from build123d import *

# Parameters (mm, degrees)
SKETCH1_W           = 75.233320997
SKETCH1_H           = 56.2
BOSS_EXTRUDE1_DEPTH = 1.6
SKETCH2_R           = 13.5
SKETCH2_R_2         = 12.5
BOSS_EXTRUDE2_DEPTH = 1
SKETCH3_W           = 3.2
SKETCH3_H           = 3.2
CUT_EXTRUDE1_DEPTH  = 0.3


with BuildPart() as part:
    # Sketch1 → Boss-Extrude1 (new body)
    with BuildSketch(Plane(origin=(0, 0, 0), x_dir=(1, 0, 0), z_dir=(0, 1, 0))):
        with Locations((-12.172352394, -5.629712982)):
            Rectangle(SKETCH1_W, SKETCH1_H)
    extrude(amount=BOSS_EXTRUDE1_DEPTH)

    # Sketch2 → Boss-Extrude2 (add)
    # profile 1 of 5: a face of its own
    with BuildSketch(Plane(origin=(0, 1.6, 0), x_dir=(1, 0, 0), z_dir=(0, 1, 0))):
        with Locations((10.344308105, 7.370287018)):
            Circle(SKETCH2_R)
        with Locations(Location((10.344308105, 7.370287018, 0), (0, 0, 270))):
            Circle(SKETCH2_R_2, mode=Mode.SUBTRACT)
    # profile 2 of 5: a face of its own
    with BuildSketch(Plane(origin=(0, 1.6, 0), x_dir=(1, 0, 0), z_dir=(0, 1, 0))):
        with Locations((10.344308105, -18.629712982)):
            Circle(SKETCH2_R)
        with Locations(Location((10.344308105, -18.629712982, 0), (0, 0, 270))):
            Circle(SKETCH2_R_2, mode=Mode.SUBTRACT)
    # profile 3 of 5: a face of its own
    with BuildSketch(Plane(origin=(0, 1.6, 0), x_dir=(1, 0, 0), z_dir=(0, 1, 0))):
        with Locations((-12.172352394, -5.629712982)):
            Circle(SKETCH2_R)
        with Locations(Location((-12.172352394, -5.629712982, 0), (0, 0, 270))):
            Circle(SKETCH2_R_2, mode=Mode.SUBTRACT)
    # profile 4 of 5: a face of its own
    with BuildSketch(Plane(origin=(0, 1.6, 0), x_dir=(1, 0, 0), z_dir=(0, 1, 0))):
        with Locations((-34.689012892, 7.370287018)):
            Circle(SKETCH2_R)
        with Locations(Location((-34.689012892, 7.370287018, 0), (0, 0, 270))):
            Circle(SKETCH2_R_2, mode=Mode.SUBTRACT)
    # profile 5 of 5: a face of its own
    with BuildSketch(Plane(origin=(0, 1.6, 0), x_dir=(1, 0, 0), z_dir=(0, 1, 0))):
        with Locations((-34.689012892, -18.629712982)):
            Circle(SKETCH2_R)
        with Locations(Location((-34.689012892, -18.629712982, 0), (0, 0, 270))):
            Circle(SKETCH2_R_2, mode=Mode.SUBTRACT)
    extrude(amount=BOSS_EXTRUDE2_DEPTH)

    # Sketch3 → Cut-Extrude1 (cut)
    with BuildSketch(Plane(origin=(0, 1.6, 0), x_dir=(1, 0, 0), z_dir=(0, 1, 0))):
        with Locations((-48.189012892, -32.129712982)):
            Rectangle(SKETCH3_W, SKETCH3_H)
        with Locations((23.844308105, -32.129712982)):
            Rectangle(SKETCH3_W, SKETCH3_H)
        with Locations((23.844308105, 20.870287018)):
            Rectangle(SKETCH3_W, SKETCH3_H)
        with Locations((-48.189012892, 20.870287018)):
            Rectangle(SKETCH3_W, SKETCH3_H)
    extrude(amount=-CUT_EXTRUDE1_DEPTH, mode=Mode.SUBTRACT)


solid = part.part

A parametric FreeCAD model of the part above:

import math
import FreeCAD as App
import Part
import Sketcher
from FreeCAD import Vector
Q = App.Units.Quantity


def add_polygon(sketch, points):
    """Adds a closed chain of lines whose ends are joined by coincident constraints."""
    first, n = sketch.GeometryCount, len(points)
    for a, b in zip(points, points[1:] + points[:1]):
        sketch.addGeometry(Part.LineSegment(App.Vector(*a, 0), App.Vector(*b, 0)), False)
    for i in range(n):
        sketch.addConstraint(Sketcher.Constraint("Coincident", first + i, 2, first + (i + 1) % n, 1))

doc = App.newDocument("Part")
params = doc.addObject("Spreadsheet::Sheet", "Params")
for row, (alias, value) in enumerate([
    ("sketch1_height", "56.2 mm"),
    ("pad1_length", "1.6 mm"),
    ("sketch2_diameter", "25 mm"),
    ("sketch2_radius", "13.5 mm"),
    ("pad2_length", "1 mm"),
    ("sketch3_width", "3.2 mm"),
    ("pocket1_length", "0.3 mm"),
], start=1):
    params.set(f"A{row}", alias)
    params.set(f"B{row}", "=" + value)
    params.setAlias(f"B{row}", alias)

body = doc.addObject("PartDesign::Body", "Body")

sketch1 = body.newObject("Sketcher::SketchObject", "Sketch")
sketch1.AttachmentSupport = (doc.getObject("XZ_Plane"), [""])
sketch1.MapMode = "FlatFace"
add_polygon(sketch1, [(-50, -22), (-50, 34), (25, 34), (25, -22)])
sketch1.addConstraint([
    Sketcher.Constraint("Vertical", 0),
    Sketcher.Constraint("Horizontal", 1),
    Sketcher.Constraint("Vertical", 2),
    Sketcher.Constraint("Horizontal", 3),
    Sketcher.Constraint("DistanceY", 0, 1, 0, 2, Q("56.2 mm")),
    Sketcher.Constraint("DistanceX", 1, 1, 1, 2, Q("75.233321 mm")),
    Sketcher.Constraint("DistanceX", -1, 1, 1, 2, Q("25.444308 mm")),
    Sketcher.Constraint("DistanceY", -1, 1, 0, 2, Q("33.729713 mm")),
])
sketch1.setExpression("Constraints[8]", "Params.sketch1_height")
pad1 = body.newObject("PartDesign::Pad", "Pad")
pad1.Profile = sketch1
pad1.setExpression("Length", "Params.pad1_length")
pad1.Reversed = True

sketch2 = body.newObject("Sketcher::SketchObject", "Sketch001")
sketch2.AttachmentSupport = (doc.getObject("XZ_Plane"), [""])
sketch2.MapMode = "FlatFace"
sketch2.AttachmentOffset = App.Placement(Vector(0, 0, -1.6), App.Rotation())
sketch2.addGeometry([
    Part.ArcOfCircle(Part.Circle(Vector(10, -7, 0), Vector(0, 0, 1), 14), math.radians(166), math.radians(434)),
    Part.ArcOfCircle(Part.Circle(Vector(-12, 6, 0), Vector(0, 0, 1), 14), math.radians(-134), math.radians(-46)),
    Part.ArcOfCircle(Part.Circle(Vector(-35, -7, 0), Vector(0, 0, 1), 14), math.radians(106), math.radians(374)),
    Part.ArcOfCircle(Part.Circle(Vector(-35, 19, 0), Vector(0, 0, 1), 14), math.radians(-14), math.radians(254)),
    Part.ArcOfCircle(Part.Circle(Vector(-12, 6, 0), Vector(0, 0, 1), 14), math.radians(46), math.radians(134)),
    Part.ArcOfCircle(Part.Circle(Vector(10, 19, 0), Vector(0, 0, 1), 14), math.radians(-74), math.radians(194)),
    Part.Circle(Vector(10, -7, 0), Vector(0, 0, 1), 12),
    Part.Circle(Vector(10, 19, 0), Vector(0, 0, 1), 12),
    Part.ArcOfCircle(Part.Circle(Vector(10, 19, 0), Vector(0, 0, 1), 14), math.radians(-134), math.radians(-106)),
    Part.ArcOfCircle(Part.Circle(Vector(-12, 6, 0), Vector(0, 0, 1), 14), math.radians(-14), math.radians(14)),
    Part.ArcOfCircle(Part.Circle(Vector(10, -7, 0), Vector(0, 0, 1), 14), math.radians(106), math.radians(134)),
    Part.Circle(Vector(-12, 6, 0), Vector(0, 0, 1), 12),
    Part.ArcOfCircle(Part.Circle(Vector(-12, 6, 0), Vector(0, 0, 1), 14), math.radians(166), math.radians(194)),
    Part.ArcOfCircle(Part.Circle(Vector(-35, 19, 0), Vector(0, 0, 1), 14), math.radians(-74), math.radians(-46)),
    Part.ArcOfCircle(Part.Circle(Vector(-35, -7, 0), Vector(0, 0, 1), 14), math.radians(46), math.radians(74)),
    Part.Circle(Vector(-35, -7, 0), Vector(0, 0, 1), 12),
    Part.Circle(Vector(-35, 19, 0), Vector(0, 0, 1), 12),
], False)
sketch2.addConstraint([
    Sketcher.Constraint("Coincident", 0, 1, 1, 2),
    Sketcher.Constraint("Coincident", 1, 1, 2, 2),
    Sketcher.Constraint("Coincident", 2, 1, 3, 2),
    Sketcher.Constraint("Coincident", 3, 1, 4, 2),
    Sketcher.Constraint("Coincident", 4, 1, 5, 2),
    Sketcher.Constraint("Coincident", 5, 1, 0, 2),
    Sketcher.Constraint("Coincident", 8, 1, 9, 2),
    Sketcher.Constraint("Coincident", 9, 1, 10, 2),
    Sketcher.Constraint("Coincident", 10, 1, 8, 2),
    Sketcher.Constraint("Coincident", 12, 1, 13, 2),
    Sketcher.Constraint("Coincident", 13, 1, 14, 2),
    Sketcher.Constraint("Coincident", 14, 1, 12, 2),
    Sketcher.Constraint("Coincident", 4, 3, 1, 3),
    Sketcher.Constraint("Coincident", 6, 3, 0, 3),
    Sketcher.Constraint("Coincident", 7, 3, 5, 3),
    Sketcher.Constraint("Coincident", 8, 3, 5, 3),
    Sketcher.Constraint("Coincident", 9, 3, 1, 3),
    Sketcher.Constraint("Coincident", 10, 3, 0, 3),
    Sketcher.Constraint("Coincident", 11, 3, 1, 3),
    Sketcher.Constraint("Coincident", 12, 3, 1, 3),
    Sketcher.Constraint("Coincident", 13, 3, 3, 3),
    Sketcher.Constraint("Coincident", 14, 3, 2, 3),
    Sketcher.Constraint("Coincident", 15, 3, 2, 3),
    Sketcher.Constraint("Coincident", 16, 3, 3, 3),
    Sketcher.Constraint("Equal", 0, 1),
    Sketcher.Constraint("Equal", 1, 2),
    Sketcher.Constraint("Equal", 2, 3),
    Sketcher.Constraint("Equal", 3, 4),
    Sketcher.Constraint("Equal", 4, 5),
    Sketcher.Constraint("Equal", 6, 7),
    Sketcher.Constraint("Equal", 5, 8),
    Sketcher.Constraint("Equal", 8, 9),
    Sketcher.Constraint("Equal", 9, 10),
    Sketcher.Constraint("Equal", 7, 11),
    Sketcher.Constraint("Equal", 10, 12),
    Sketcher.Constraint("Equal", 12, 13),
    Sketcher.Constraint("Equal", 13, 14),
    Sketcher.Constraint("Equal", 11, 15),
    Sketcher.Constraint("Equal", 15, 16),
    Sketcher.Constraint("Horizontal", 0, 3, 2, 3),
    Sketcher.Constraint("Horizontal", 3, 3, 5, 3),
    Sketcher.Constraint("Horizontal", 0, 1, 1, 1),
    Sketcher.Constraint("Horizontal", 12, 3, 2, 1),
    Sketcher.Constraint("Horizontal", 3, 1, 4, 1),
    Sketcher.Constraint("Horizontal", 5, 1, 10, 1),
    Sketcher.Constraint("Diameter", 6, Q("25 mm")),
    Sketcher.Constraint("Radius", 0, Q("13.5 mm")),
    Sketcher.Constraint("DistanceY", 0, 3, 1, 3, Q("13 mm")),
    Sketcher.Constraint("DistanceX", -1, 1, 0, 3, Q("10.344308 mm")),
    Sketcher.Constraint("DistanceX", 0, 1, -1, 1, Q("2.73405 mm")),
    Sketcher.Constraint("DistanceY", 0, 3, -1, 1, Q("7.370287 mm")),
])
sketch2.setExpression("Constraints[45]", "Params.sketch2_diameter")
sketch2.setExpression("Constraints[46]", "Params.sketch2_radius")
pad2 = body.newObject("PartDesign::Pad", "Pad001")
pad2.Profile = sketch2
pad2.setExpression("Length", "Params.pad2_length")
pad2.Reversed = True

sketch3 = body.newObject("Sketcher::SketchObject", "Sketch002")
sketch3.AttachmentSupport = (doc.getObject("XZ_Plane"), [""])
sketch3.MapMode = "FlatFace"
sketch3.AttachmentOffset = App.Placement(Vector(0, 0, -1.6), App.Rotation())
add_polygon(sketch3, [(-49.8, 30.5), (-49.8, 33.7), (-46.6, 33.7), (-46.6, 30.5)])
add_polygon(sketch3, [(22.2, 30.5), (22.2, 33.7), (25.4, 33.7), (25.4, 30.5)])
add_polygon(sketch3, [(22.2, -22.5), (22.2, -19.3), (25.4, -19.3), (25.4, -22.5)])
add_polygon(sketch3, [(-49.8, -22.5), (-49.8, -19.3), (-46.6, -19.3), (-46.6, -22.5)])
sketch3.addConstraint([
    Sketcher.Constraint("Vertical", 0),
    Sketcher.Constraint("Horizontal", 1),
    Sketcher.Constraint("Vertical", 2),
    Sketcher.Constraint("Horizontal", 3),
    Sketcher.Constraint("Vertical", 4),
    Sketcher.Constraint("Horizontal", 5),
    Sketcher.Constraint("Vertical", 6),
    Sketcher.Constraint("Horizontal", 7),
    Sketcher.Constraint("Vertical", 8),
    Sketcher.Constraint("Horizontal", 9),
    Sketcher.Constraint("Vertical", 10),
    Sketcher.Constraint("Horizontal", 11),
    Sketcher.Constraint("Vertical", 12),
    Sketcher.Constraint("Horizontal", 13),
    Sketcher.Constraint("Vertical", 14),
    Sketcher.Constraint("Horizontal", 15),
    Sketcher.Constraint("Horizontal", 1, 2, 4, 2),
    Sketcher.Constraint("Horizontal", 3, 2, 6, 2),
    Sketcher.Constraint("Horizontal", 9, 2, 12, 2),
    Sketcher.Constraint("Horizontal", 11, 2, 14, 2),
    Sketcher.Constraint("Vertical", 7, 2, 8, 2),
    Sketcher.Constraint("Vertical", 6, 2, 9, 2),
    Sketcher.Constraint("Vertical", 3, 2, 12, 2),
    Sketcher.Constraint("Vertical", 2, 2, 13, 2),
    Sketcher.Constraint("Equal", 3, 5),
    Sketcher.Constraint("Equal", 15, 0),
    Sketcher.Constraint("Equal", 6, 8),
    Sketcher.Constraint("DistanceX", 1, 1, 1, 2, Q("3.2 mm")),
    Sketcher.Constraint("DistanceY", 8, 2, 4, 2, Q("53 mm")),
    Sketcher.Constraint("DistanceX", -1, 1, 4, 2, Q("22.244308 mm")),
    Sketcher.Constraint("DistanceX", 1, 2, 4, 2, Q("68.833321 mm")),
    Sketcher.Constraint("DistanceY", -1, 1, 0, 2, Q("33.729713 mm")),
])
sketch3.setExpression("Constraints[43]", "Params.sketch3_width")
pocket1 = body.newObject("PartDesign::Pocket", "Pocket")
pocket1.Profile = sketch3
pocket1.setExpression("Length", "Params.pocket1_length")
pocket1.Reversed = True

doc.recompute()
